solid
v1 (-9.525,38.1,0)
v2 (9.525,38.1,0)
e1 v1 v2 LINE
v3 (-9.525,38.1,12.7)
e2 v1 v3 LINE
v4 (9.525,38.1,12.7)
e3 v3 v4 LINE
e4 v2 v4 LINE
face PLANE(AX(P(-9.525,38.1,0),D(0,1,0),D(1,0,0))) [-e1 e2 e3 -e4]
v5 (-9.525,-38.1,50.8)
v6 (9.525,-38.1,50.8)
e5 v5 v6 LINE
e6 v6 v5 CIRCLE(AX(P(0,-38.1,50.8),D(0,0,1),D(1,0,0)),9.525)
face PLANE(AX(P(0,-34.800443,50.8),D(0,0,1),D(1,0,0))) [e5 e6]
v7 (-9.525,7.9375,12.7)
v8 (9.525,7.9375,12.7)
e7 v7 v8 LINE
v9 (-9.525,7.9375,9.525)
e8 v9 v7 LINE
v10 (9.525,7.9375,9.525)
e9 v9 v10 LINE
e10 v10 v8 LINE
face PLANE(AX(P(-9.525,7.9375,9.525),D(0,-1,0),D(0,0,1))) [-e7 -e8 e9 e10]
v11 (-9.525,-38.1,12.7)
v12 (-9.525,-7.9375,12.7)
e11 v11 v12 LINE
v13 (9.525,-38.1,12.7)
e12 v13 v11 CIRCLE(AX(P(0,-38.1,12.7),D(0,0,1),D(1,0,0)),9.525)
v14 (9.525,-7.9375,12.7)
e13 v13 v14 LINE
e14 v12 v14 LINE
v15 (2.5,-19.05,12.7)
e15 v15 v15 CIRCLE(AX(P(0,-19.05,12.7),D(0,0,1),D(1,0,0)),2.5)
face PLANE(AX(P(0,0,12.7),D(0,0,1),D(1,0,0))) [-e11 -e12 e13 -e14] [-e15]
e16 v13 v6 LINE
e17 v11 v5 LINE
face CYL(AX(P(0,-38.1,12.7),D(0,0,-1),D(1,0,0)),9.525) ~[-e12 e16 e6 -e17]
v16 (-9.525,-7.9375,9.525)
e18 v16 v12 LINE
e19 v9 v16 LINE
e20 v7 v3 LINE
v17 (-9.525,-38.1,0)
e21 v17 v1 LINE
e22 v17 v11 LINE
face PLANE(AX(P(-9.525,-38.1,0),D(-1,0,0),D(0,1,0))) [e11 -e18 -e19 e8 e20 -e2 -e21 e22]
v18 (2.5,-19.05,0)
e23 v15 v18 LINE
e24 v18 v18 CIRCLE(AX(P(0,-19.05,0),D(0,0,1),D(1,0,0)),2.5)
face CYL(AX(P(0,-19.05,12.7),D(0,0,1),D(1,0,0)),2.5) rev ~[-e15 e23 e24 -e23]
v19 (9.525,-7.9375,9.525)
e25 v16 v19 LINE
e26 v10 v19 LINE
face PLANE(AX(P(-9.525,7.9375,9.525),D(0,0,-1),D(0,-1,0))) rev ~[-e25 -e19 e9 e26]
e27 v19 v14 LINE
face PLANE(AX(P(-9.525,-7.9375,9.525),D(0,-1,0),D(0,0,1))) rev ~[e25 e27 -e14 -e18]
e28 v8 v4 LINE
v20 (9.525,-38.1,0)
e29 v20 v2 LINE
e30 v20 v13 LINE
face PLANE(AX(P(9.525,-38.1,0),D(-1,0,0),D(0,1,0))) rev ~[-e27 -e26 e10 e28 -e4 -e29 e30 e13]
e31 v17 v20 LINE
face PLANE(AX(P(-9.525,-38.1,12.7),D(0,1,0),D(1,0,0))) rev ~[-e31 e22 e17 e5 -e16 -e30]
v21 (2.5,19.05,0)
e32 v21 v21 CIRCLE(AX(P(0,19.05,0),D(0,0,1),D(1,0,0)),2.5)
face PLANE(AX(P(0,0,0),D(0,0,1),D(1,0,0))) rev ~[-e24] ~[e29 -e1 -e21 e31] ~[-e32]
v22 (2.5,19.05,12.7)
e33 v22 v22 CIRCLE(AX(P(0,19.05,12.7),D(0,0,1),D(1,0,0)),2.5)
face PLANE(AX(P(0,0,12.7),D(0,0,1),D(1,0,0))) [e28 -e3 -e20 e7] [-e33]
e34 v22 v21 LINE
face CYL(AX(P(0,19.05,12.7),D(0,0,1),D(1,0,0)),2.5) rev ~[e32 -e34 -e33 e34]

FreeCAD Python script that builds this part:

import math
import FreeCAD as App
import Part
import Sketcher
Q = App.Units.Quantity


def add_polygon(sketch, points):
    """Adds a closed chain of lines whose ends are joined by coincident constraints."""
    first, n = sketch.GeometryCount, len(points)
    for a, b in zip(points, points[1:] + points[:1]):
        sketch.addGeometry(Part.LineSegment(App.Vector(*a, 0), App.Vector(*b, 0)), False)
    for i in range(n):
        sketch.addConstraint(Sketcher.Constraint("Coincident", first + i, 2, first + (i + 1) % n, 1))

doc = App.newDocument("Part")
params = doc.addObject("Spreadsheet::Sheet", "Params")
for row, (alias, value) in enumerate([
    ("sketch1_height", "3 in"),
    ("sketch1_width", "0.75 in"),
    ("pad1_length", "0.5 in"),
    ("sketch2_radius", "0.375 in"),
    ("pad2_length", "1.5 in"),
    ("sketch3_height", "0.25 in"),
    ("sketch3_width", "0.625 in"),
], start=1):
    params.set(f"A{row}", alias)
    params.set(f"B{row}", "=" + value)
    params.setAlias(f"B{row}", alias)

body = doc.addObject("PartDesign::Body", "Body")

sketch1 = doc.addObject("Sketcher::SketchObject", "Sketch")
body.addObject(sketch1)
sketch1.AttachmentSupport = (doc.XY_Plane, [""])
sketch1.MapMode = "FlatFace"
add_polygon(sketch1, [(-10, 38), (-10, -38), (10, -38), (10, 38)])
sketch1.addConstraint(Sketcher.Constraint("Vertical", 0))
sketch1.addConstraint(Sketcher.Constraint("Horizontal", 1))
sketch1.addConstraint(Sketcher.Constraint("Vertical", 2))
sketch1.addConstraint(Sketcher.Constraint("Horizontal", 3))
sketch1.addConstraint(Sketcher.Constraint("Symmetric", 0, 2, 2, 2, -1, 1))
sketch1.addConstraint(Sketcher.Constraint("DistanceY", 0, 2, 0, 1, Q("3 in")))
sketch1.addConstraint(Sketcher.Constraint("DistanceX", 1, 1, 1, 2, Q("0.75 in")))
sketch1.setExpression("Constraints[9]", "Params.sketch1_height")
sketch1.setExpression("Constraints[10]", "Params.sketch1_width")
pad1 = doc.addObject("PartDesign::Pad", "Pad")
body.addObject(pad1)
pad1.Profile = sketch1
pad1.setExpression("Length", "Params.pad1_length")

sketch2 = doc.addObject("Sketcher::SketchObject", "Sketch001")
body.addObject(sketch2)
sketch2.AttachmentSupport = (doc.XY_Plane, [""])
sketch2.MapMode = "FlatFace"
sketch2.AttachmentOffset = App.Placement(App.Vector(0, 0, 0.5 * 25.4), App.Rotation())
sketch2.addGeometry(Part.LineSegment(App.Vector(-10, -38, 0), App.Vector(10, -38, 0)), False)
sketch2.addGeometry(Part.ArcOfCircle(Part.Circle(App.Vector(0, -38, 0), App.Vector(0, 0, 1), 10), math.radians(0), math.radians(180)), False)
sketch2.addConstraint(Sketcher.Constraint("Coincident", 0, 1, 1, 2))
sketch2.addConstraint(Sketcher.Constraint("Coincident", 1, 1, 0, 2))
sketch2.addConstraint(Sketcher.Constraint("Horizontal", 0))
sketch2.addConstraint(Sketcher.Constraint("PointOnObject", 1, 3, -2))
sketch2.addConstraint(Sketcher.Constraint("Horizontal", 1, 3, 0, 1))
sketch2.addConstraint(Sketcher.Constraint("Radius", 1, Q("0.375 in")))
sketch2.addConstraint(Sketcher.Constraint("DistanceY", 1, 3, -1, 1, Q("1.5 in")))
sketch2.setExpression("Constraints[5]", "Params.sketch2_radius")
pad2 = doc.addObject("PartDesign::Pad", "Pad001")
body.addObject(pad2)
pad2.Profile = sketch2
pad2.setExpression("Length", "Params.pad2_length")

sketch3 = doc.addObject("Sketcher::SketchObject", "Sketch002")
body.addObject(sketch3)
sketch3.AttachmentSupport = (doc.YZ_Plane, [""])
sketch3.MapMode = "FlatFace"
sketch3.AttachmentOffset = App.Placement(App.Vector(0, 0, -0.375 * 25.4), App.Rotation())
add_polygon(sketch3, [(8, 16), (8, 10), (-8, 10), (-8, 16)])
sketch3.addConstraint(Sketcher.Constraint("Vertical", 0))
sketch3.addConstraint(Sketcher.Constraint("Horizontal", 1))
sketch3.addConstraint(Sketcher.Constraint("Vertical", 2))
sketch3.addConstraint(Sketcher.Constraint("Horizontal", 3))
sketch3.addConstraint(Sketcher.Constraint("DistanceY", 0, 2, 0, 1, Q("0.25 in")))
sketch3.addConstraint(Sketcher.Constraint("DistanceX", 1, 2, 1, 1, Q("0.625 in")))
sketch3.addConstraint(Sketcher.Constraint("DistanceX", -1, 1, 0, 2, Q("0.3125 in")))
sketch3.addConstraint(Sketcher.Constraint("DistanceY", -1, 1, 0, 2, Q("0.375 in")))
sketch3.setExpression("Constraints[8]", "Params.sketch3_height")
sketch3.setExpression("Constraints[9]", "Params.sketch3_width")
pocket1 = doc.addObject("PartDesign::Pocket", "Pocket")
body.addObject(pocket1)
pocket1.Profile = sketch3
pocket1.Type = "ThroughAll"
pocket1.Reversed = True

sketch4 = doc.addObject("Sketcher::SketchObject", "Sketch003")
body.addObject(sketch4)
sketch4.AttachmentSupport = (doc.XY_Plane, [""])
sketch4.MapMode = "FlatFace"
sketch4.AttachmentOffset = App.Placement(App.Vector(0, 0, 0.5 * 25.4), App.Rotation())
sketch4.addGeometry(Part.Circle(App.Vector(0, -19.1, 0), App.Vector(0, 0, 1), 2.5), False)
sketch4.addGeometry(Part.Circle(App.Vector(0, 19.1, 0), App.Vector(0, 0, 1), 2.5), False)
sketch4.addConstraint(Sketcher.Constraint("Equal", 0, 1))
sketch4.addConstraint(Sketcher.Constraint("Symmetric", 0, 3, 1, 3, -1, 1))
sketch4.addConstraint(Sketcher.Constraint("PointOnObject", 0, 3, -2))
sketch4.addConstraint(Sketcher.Constraint("DistanceY", 0, 3, 1, 3, Q("1.5 in")))
sketch4.addConstraint(Sketcher.Constraint("Diameter", 0, Q("5 mm")))
pocket2 = doc.addObject("PartDesign::Pocket", "Pocket001")
body.addObject(pocket2)
pocket2.Profile = sketch4
pocket2.Type = "ThroughAll"

doc.recompute()
